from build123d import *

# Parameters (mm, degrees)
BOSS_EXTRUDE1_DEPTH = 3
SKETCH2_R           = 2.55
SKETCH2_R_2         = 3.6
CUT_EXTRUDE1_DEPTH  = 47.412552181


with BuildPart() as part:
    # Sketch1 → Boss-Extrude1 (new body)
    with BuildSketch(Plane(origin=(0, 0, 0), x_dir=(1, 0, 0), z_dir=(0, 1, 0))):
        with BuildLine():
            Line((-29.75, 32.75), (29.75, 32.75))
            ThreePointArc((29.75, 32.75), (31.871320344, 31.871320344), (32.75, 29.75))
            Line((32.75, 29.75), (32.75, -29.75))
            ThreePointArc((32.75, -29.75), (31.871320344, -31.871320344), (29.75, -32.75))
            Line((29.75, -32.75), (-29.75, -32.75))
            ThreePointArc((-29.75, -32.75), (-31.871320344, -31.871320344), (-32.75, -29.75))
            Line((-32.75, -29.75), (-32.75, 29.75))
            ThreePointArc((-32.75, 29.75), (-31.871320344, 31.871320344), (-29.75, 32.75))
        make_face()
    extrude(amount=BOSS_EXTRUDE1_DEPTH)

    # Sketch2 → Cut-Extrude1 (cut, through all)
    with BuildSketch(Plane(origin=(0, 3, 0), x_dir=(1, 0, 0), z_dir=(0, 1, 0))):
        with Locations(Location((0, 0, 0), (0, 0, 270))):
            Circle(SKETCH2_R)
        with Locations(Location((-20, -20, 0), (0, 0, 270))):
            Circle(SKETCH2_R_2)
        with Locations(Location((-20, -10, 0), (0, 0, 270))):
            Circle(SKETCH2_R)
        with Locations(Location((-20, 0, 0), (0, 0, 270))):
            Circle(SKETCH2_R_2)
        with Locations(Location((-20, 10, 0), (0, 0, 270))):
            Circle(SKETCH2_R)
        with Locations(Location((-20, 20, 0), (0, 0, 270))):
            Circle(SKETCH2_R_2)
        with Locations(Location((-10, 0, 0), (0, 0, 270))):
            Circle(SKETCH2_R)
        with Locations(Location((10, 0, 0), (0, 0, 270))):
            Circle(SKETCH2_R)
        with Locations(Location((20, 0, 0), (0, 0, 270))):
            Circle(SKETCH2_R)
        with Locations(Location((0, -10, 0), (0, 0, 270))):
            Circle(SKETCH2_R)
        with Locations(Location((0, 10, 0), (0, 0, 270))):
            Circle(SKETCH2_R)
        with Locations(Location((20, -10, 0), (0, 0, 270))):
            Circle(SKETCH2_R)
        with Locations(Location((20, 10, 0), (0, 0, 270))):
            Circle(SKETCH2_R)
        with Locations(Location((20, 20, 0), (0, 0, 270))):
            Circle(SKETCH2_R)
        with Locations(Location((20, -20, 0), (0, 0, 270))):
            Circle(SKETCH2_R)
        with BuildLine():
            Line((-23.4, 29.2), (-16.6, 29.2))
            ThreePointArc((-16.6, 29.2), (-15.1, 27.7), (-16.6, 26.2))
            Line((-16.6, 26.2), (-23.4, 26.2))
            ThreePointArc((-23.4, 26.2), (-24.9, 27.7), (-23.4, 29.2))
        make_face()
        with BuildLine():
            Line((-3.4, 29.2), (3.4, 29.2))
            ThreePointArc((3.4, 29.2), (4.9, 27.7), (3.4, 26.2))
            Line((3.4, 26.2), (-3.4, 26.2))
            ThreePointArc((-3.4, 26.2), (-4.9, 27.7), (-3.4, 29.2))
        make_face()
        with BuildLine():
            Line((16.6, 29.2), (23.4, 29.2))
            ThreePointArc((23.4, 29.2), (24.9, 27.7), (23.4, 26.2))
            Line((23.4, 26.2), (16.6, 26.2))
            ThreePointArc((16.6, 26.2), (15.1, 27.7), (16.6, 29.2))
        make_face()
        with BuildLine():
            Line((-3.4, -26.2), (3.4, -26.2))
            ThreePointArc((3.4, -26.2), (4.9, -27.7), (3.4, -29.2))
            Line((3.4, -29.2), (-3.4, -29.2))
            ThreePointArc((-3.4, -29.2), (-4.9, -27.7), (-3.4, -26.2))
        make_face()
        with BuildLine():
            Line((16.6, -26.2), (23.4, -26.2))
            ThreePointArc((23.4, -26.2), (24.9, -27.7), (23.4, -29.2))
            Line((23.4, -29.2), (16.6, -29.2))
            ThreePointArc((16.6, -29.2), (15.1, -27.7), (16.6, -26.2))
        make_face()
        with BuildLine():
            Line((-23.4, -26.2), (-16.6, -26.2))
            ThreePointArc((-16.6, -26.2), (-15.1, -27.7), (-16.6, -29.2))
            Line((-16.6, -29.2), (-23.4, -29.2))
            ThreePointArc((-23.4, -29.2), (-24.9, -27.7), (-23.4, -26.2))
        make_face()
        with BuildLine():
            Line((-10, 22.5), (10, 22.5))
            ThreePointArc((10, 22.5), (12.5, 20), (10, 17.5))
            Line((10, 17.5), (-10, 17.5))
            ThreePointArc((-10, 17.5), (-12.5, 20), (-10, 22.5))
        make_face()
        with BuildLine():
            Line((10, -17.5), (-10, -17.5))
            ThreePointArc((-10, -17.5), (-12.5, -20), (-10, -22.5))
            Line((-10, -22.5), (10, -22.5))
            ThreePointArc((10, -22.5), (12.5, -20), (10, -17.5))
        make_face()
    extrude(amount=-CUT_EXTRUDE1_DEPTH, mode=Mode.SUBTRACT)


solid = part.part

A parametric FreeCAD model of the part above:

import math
import FreeCAD as App
import Part
import Sketcher
from FreeCAD import Vector

doc = App.newDocument("Part")
body = doc.addObject("PartDesign::Body", "Body")

sketch1 = body.newObject("Sketcher::SketchObject", "Sketch")
sketch1.AttachmentSupport = (doc.getObject("XZ_Plane"), [""])
sketch1.MapMode = "FlatFace"
sketch1.addGeometry([
    Part.LineSegment(Vector(29.8, -32.8, 0), Vector(-29.8, -32.8, 0)),
    Part.ArcOfCircle(Part.Circle(Vector(-29.8, -29.8, 0), Vector(0, 0, 1), 3), math.radians(180), math.radians(270)),
    Part.LineSegment(Vector(-32.8, -29.8, 0), Vector(-32.8, 29.8, 0)),
    Part.ArcOfCircle(Part.Circle(Vector(-29.8, 29.8, 0), Vector(0, 0, 1), 3), math.radians(90), math.radians(180)),
    Part.LineSegment(Vector(-29.8, 32.8, 0), Vector(29.8, 32.8, 0)),
    Part.ArcOfCircle(Part.Circle(Vector(29.8, 29.8, 0), Vector(0, 0, 1), 3), math.radians(0), math.radians(90)),
    Part.LineSegment(Vector(32.8, 29.8, 0), Vector(32.8, -29.8, 0)),
    Part.ArcOfCircle(Part.Circle(Vector(29.8, -29.8, 0), Vector(0, 0, 1), 3), math.radians(-90), math.radians(0)),
], False)
sketch1.addConstraint([
    Sketcher.Constraint("Tangent", 0, 2, 1, 2),
    Sketcher.Constraint("Tangent", 1, 1, 2, 1),
    Sketcher.Constraint("Tangent", 2, 2, 3, 2),
    Sketcher.Constraint("Tangent", 3, 1, 4, 1),
    Sketcher.Constraint("Tangent", 4, 2, 5, 2),
    Sketcher.Constraint("Tangent", 5, 1, 6, 1),
    Sketcher.Constraint("Tangent", 6, 2, 7, 2),
    Sketcher.Constraint("Tangent", 7, 1, 0, 1),
    Sketcher.Constraint("Horizontal", 0),
    Sketcher.Constraint("Vertical", 2),
    Sketcher.Constraint("Horizontal", 4),
    Sketcher.Constraint("Vertical", 6),
    Sketcher.Constraint("Equal", 1, 3),
    Sketcher.Constraint("Equal", 3, 5),
    Sketcher.Constraint("Equal", 5, 7),
    Sketcher.Constraint("Symmetric", 1, 3, 5, 3, -1, 1),
    Sketcher.Constraint("Equal", 4, 2),
    Sketcher.Constraint("Radius", 1, 3.0),
    Sketcher.Constraint("DistanceX", 0, 2, 0, 1, 59.5),
])
pad1 = body.newObject("PartDesign::Pad", "Pad")
pad1.Profile = sketch1
pad1.Length = 3
pad1.Reversed = True

sketch2 = body.newObject("Sketcher::SketchObject", "Sketch001")
sketch2.AttachmentSupport = (doc.getObject("XZ_Plane"), [""])
sketch2.MapMode = "FlatFace"
sketch2.AttachmentOffset = App.Placement(Vector(0, 0, -3), App.Rotation())
sketch2.addGeometry([
    Part.Circle(Vector(0, 0, 0), Vector(0, 0, 1), 2.5),
    Part.Circle(Vector(-20, 20, 0), Vector(0, 0, 1), 3.6),
    Part.Circle(Vector(-20, 10, 0), Vector(0, 0, 1), 2.5),
    Part.Circle(Vector(-20, 0, 0), Vector(0, 0, 1), 3.6),
    Part.Circle(Vector(-20, -10, 0), Vector(0, 0, 1), 2.5),
    Part.Circle(Vector(-20, -20, 0), Vector(0, 0, 1), 3.6),
    Part.Circle(Vector(-10, 0, 0), Vector(0, 0, 1), 2.5),
    Part.Circle(Vector(10, 0, 0), Vector(0, 0, 1), 2.5),
    Part.Circle(Vector(20, 0, 0), Vector(0, 0, 1), 2.5),
    Part.Circle(Vector(0, 10, 0), Vector(0, 0, 1), 2.5),
    Part.Circle(Vector(0, -10, 0), Vector(0, 0, 1), 2.5),
    Part.Circle(Vector(20, 10, 0), Vector(0, 0, 1), 2.5),
    Part.Circle(Vector(20, -10, 0), Vector(0, 0, 1), 2.5),
    Part.Circle(Vector(20, -20, 0), Vector(0, 0, 1), 2.5),
    Part.Circle(Vector(20, 20, 0), Vector(0, 0, 1), 2.5),
    Part.LineSegment(Vector(-16.6, -29.2, 0), Vector(-23.4, -29.2, 0)),
    Part.ArcOfCircle(Part.Circle(Vector(-23.4, -27.7, 0), Vector(0, 0, 1), 1.5), math.radians(90), math.radians(270)),
    Part.LineSegment(Vector(-23.4, -26.2, 0), Vector(-16.6, -26.2, 0)),
    Part.ArcOfCircle(Part.Circle(Vector(-16.6, -27.7, 0), Vector(0, 0, 1), 1.5), math.radians(-90), math.radians(90)),
    Part.LineSegment(Vector(3.4, -29.2, 0), Vector(-3.4, -29.2, 0)),
    Part.ArcOfCircle(Part.Circle(Vector(-3.4, -27.7, 0), Vector(0, 0, 1), 1.5), math.radians(90), math.radians(270)),
    Part.LineSegment(Vector(-3.4, -26.2, 0), Vector(3.4, -26.2, 0)),
    Part.ArcOfCircle(Part.Circle(Vector(3.4, -27.7, 0), Vector(0, 0, 1), 1.5), math.radians(-90), math.radians(90)),
    Part.LineSegment(Vector(23.4, -29.2, 0), Vector(16.6, -29.2, 0)),
    Part.ArcOfCircle(Part.Circle(Vector(16.6, -27.7, 0), Vector(0, 0, 1), 1.5), math.radians(90), math.radians(270)),
    Part.LineSegment(Vector(16.6, -26.2, 0), Vector(23.4, -26.2, 0)),
    Part.ArcOfCircle(Part.Circle(Vector(23.4, -27.7, 0), Vector(0, 0, 1), 1.5), math.radians(-90), math.radians(90)),
    Part.LineSegment(Vector(3.4, 26.2, 0), Vector(-3.4, 26.2, 0)),
    Part.ArcOfCircle(Part.Circle(Vector(-3.4, 27.7, 0), Vector(0, 0, 1), 1.5), math.radians(90), math.radians(270)),
    Part.LineSegment(Vector(-3.4, 29.2, 0), Vector(3.4, 29.2, 0)),
    Part.ArcOfCircle(Part.Circle(Vector(3.4, 27.7, 0), Vector(0, 0, 1), 1.5), math.radians(-90), math.radians(90)),
    Part.LineSegment(Vector(23.4, 26.2, 0), Vector(16.6, 26.2, 0)),
    Part.ArcOfCircle(Part.Circle(Vector(16.6, 27.7, 0), Vector(0, 0, 1), 1.5), math.radians(90), math.radians(270)),
    Part.LineSegment(Vector(16.6, 29.2, 0), Vector(23.4, 29.2, 0)),
    Part.ArcOfCircle(Part.Circle(Vector(23.4, 27.7, 0), Vector(0, 0, 1), 1.5), math.radians(-90), math.radians(90)),
    Part.LineSegment(Vector(-16.6, 26.2, 0), Vector(-23.4, 26.2, 0)),
    Part.ArcOfCircle(Part.Circle(Vector(-23.4, 27.7, 0), Vector(0, 0, 1), 1.5), math.radians(90), math.radians(270)),
    Part.LineSegment(Vector(-23.4, 29.2, 0), Vector(-16.6, 29.2, 0)),
    Part.ArcOfCircle(Part.Circle(Vector(-16.6, 27.7, 0), Vector(0, 0, 1), 1.5), math.radians(-90), math.radians(90)),
    Part.LineSegment(Vector(10, -22.5, 0), Vector(-10, -22.5, 0)),
    Part.ArcOfCircle(Part.Circle(Vector(-10, -20, 0), Vector(0, 0, 1), 2.5), math.radians(90), math.radians(270)),
    Part.LineSegment(Vector(-10, -17.5, 0), Vector(10, -17.5, 0)),
    Part.ArcOfCircle(Part.Circle(Vector(10, -20, 0), Vector(0, 0, 1), 2.5), math.radians(-90), math.radians(90)),
    Part.LineSegment(Vector(10, 17.5, 0), Vector(-10, 17.5, 0)),
    Part.ArcOfCircle(Part.Circle(Vector(-10, 20, 0), Vector(0, 0, 1), 2.5), math.radians(90), math.radians(270)),
    Part.LineSegment(Vector(-10, 22.5, 0), Vector(10, 22.5, 0)),
    Part.ArcOfCircle(Part.Circle(Vector(10, 20, 0), Vector(0, 0, 1), 2.5), math.radians(-90), math.radians(90)),
], False)
sketch2.addConstraint([
    Sketcher.Constraint("Tangent", 15, 2, 16, 2),
    Sketcher.Constraint("Tangent", 16, 1, 17, 1),
    Sketcher.Constraint("Tangent", 17, 2, 18, 2),
    Sketcher.Constraint("Tangent", 18, 1, 15, 1),
    Sketcher.Constraint("Tangent", 19, 2, 20, 2),
    Sketcher.Constraint("Tangent", 20, 1, 21, 1),
    Sketcher.Constraint("Tangent", 21, 2, 22, 2),
    Sketcher.Constraint("Tangent", 22, 1, 19, 1),
    Sketcher.Constraint("Tangent", 23, 2, 24, 2),
    Sketcher.Constraint("Tangent", 24, 1, 25, 1),
    Sketcher.Constraint("Tangent", 25, 2, 26, 2),
    Sketcher.Constraint("Tangent", 26, 1, 23, 1),
    Sketcher.Constraint("Tangent", 27, 2, 28, 2),
    Sketcher.Constraint("Tangent", 28, 1, 29, 1),
    Sketcher.Constraint("Tangent", 29, 2, 30, 2),
    Sketcher.Constraint("Tangent", 30, 1, 27, 1),
    Sketcher.Constraint("Tangent", 31, 2, 32, 2),
    Sketcher.Constraint("Tangent", 32, 1, 33, 1),
    Sketcher.Constraint("Tangent", 33, 2, 34, 2),
    Sketcher.Constraint("Tangent", 34, 1, 31, 1),
    Sketcher.Constraint("Tangent", 35, 2, 36, 2),
    Sketcher.Constraint("Tangent", 36, 1, 37, 1),
    Sketcher.Constraint("Tangent", 37, 2, 38, 2),
    Sketcher.Constraint("Tangent", 38, 1, 35, 1),
    Sketcher.Constraint("Tangent", 39, 2, 40, 2),
    Sketcher.Constraint("Tangent", 40, 1, 41, 1),
    Sketcher.Constraint("Tangent", 41, 2, 42, 2),
    Sketcher.Constraint("Tangent", 42, 1, 39, 1),
    Sketcher.Constraint("Tangent", 43, 2, 44, 2),
    Sketcher.Constraint("Tangent", 44, 1, 45, 1),
    Sketcher.Constraint("Tangent", 45, 2, 46, 2),
    Sketcher.Constraint("Tangent", 46, 1, 43, 1),
    Sketcher.Constraint("Horizontal", 15),
    Sketcher.Constraint("Horizontal", 17),
    Sketcher.Constraint("Horizontal", 19),
    Sketcher.Constraint("Horizontal", 21),
    Sketcher.Constraint("Horizontal", 23),
    Sketcher.Constraint("Horizontal", 25),
    Sketcher.Constraint("Horizontal", 27),
    Sketcher.Constraint("Horizontal", 29),
    Sketcher.Constraint("Horizontal", 31),
    Sketcher.Constraint("Horizontal", 33),
    Sketcher.Constraint("Horizontal", 35),
    Sketcher.Constraint("Horizontal", 37),
    Sketcher.Constraint("Horizontal", 39),
    Sketcher.Constraint("Horizontal", 41),
    Sketcher.Constraint("Horizontal", 43),
    Sketcher.Constraint("Horizontal", 45),
    Sketcher.Constraint("Coincident", 0, 3, -1, 1),
    Sketcher.Constraint("Equal", 0, 2),
    Sketcher.Constraint("Equal", 1, 3),
    Sketcher.Constraint("Equal", 2, 4),
    Sketcher.Constraint("Equal", 3, 5),
    Sketcher.Constraint("Equal", 4, 6),
    Sketcher.Constraint("Equal", 6, 7),
    Sketcher.Constraint("Equal", 7, 8),
    Sketcher.Constraint("Equal", 8, 9),
    Sketcher.Constraint("Equal", 9, 10),
    Sketcher.Constraint("Equal", 10, 11),
    Sketcher.Constraint("Equal", 11, 12),
    Sketcher.Constraint("Equal", 12, 13),
    Sketcher.Constraint("Equal", 13, 14),
    Sketcher.Constraint("Equal", 18, 20),
    Sketcher.Constraint("Equal", 22, 24),
    Sketcher.Constraint("Equal", 26, 28),
    Sketcher.Constraint("Equal", 30, 32),
    Sketcher.Constraint("Equal", 34, 36),
    Sketcher.Constraint("Equal", 42, 44),
    Sketcher.Constraint("Symmetric", 6, 3, 7, 3, -1, 1),
    Sketcher.Constraint("Symmetric", 3, 3, 8, 3, -1, 1),
    Sketcher.Constraint("Symmetric", 9, 3, 10, 3, -1, 1),
    Sketcher.Constraint("Symmetric", 4, 3, 11, 3, -1, 1),
    Sketcher.Constraint("Symmetric", 2, 3, 12, 3, -1, 1),
    Sketcher.Constraint("Symmetric", 1, 3, 13, 3, -1, 1),
    Sketcher.Constraint("Symmetric", 5, 3, 14, 3, -1, 1),
    Sketcher.Constraint("Symmetric", 22, 3, 28, 3, -1, 1),
    Sketcher.Constraint("Symmetric", 18, 3, 32, 3, -1, 1),
    Sketcher.Constraint("Symmetric", 26, 3, 36, 3, -1, 1),
    Sketcher.Constraint("Symmetric", 42, 3, 44, 3, -1, 1),
    Sketcher.Constraint("Symmetric", 2, 3, 11, 3, -2),
    Sketcher.Constraint("Symmetric", 5, 3, 13, 3, -2),
    Sketcher.Constraint("Symmetric", 18, 3, 24, 3, -2),
    Sketcher.Constraint("PointOnObject", 3, 3, -1),
    Sketcher.Constraint("PointOnObject", 6, 3, -1),
    Sketcher.Constraint("PointOnObject", 9, 3, -2),
    Sketcher.Constraint("Horizontal", 2, 3, 9, 3),
    Sketcher.Constraint("Horizontal", 18, 3, 20, 3),
    Sketcher.Constraint("Horizontal", 13, 3, 40, 3),
    Sketcher.Constraint("Vertical", 1, 3, 2, 3),
    Sketcher.Constraint("Vertical", 2, 3, 3, 3),
    Sketcher.Constraint("Vertical", 20, 3, 28, 3),
    Sketcher.Constraint("Vertical", 22, 3, 30, 3),
    Sketcher.Constraint("Vertical", 26, 3, 34, 3),
    Sketcher.Constraint("Vertical", 16, 3, 36, 3),
    Sketcher.Constraint("Vertical", 18, 3, 38, 3),
    Sketcher.Constraint("Vertical", 6, 3, 40, 3),
    Sketcher.Constraint("Vertical", 7, 3, 42, 3),
    Sketcher.Constraint("Vertical", 42, 3, 46, 3),
    Sketcher.Constraint("Equal", 17, 19),
    Sketcher.Constraint("Diameter", 0, 5.1),
    Sketcher.Constraint("Diameter", 1, 7.2),
    Sketcher.Constraint("Radius", 16, 1.5),
    Sketcher.Constraint("Radius", 40, 2.5),
    Sketcher.Constraint("DistanceX", 39, 2, 39, 1, 20.0),
    Sketcher.Constraint("DistanceX", 15, 2, 15, 1, 6.8),
    Sketcher.Constraint("DistanceX", 1, 3, -1, 1, 20.0),
    Sketcher.Constraint("DistanceY", -1, 1, 1, 3, 20.0),
    Sketcher.Constraint("DistanceY", -1, 1, 2, 3, 10.0),
    Sketcher.Constraint("DistanceX", 16, 3, -1, 1, 23.4),
    Sketcher.Constraint("DistanceY", 16, 3, -1, 1, 27.7),
])
pocket1 = body.newObject("PartDesign::Pocket", "Pocket")
pocket1.Profile = sketch2
pocket1.Type = "ThroughAll"
pocket1.Reversed = True

doc.recompute()
